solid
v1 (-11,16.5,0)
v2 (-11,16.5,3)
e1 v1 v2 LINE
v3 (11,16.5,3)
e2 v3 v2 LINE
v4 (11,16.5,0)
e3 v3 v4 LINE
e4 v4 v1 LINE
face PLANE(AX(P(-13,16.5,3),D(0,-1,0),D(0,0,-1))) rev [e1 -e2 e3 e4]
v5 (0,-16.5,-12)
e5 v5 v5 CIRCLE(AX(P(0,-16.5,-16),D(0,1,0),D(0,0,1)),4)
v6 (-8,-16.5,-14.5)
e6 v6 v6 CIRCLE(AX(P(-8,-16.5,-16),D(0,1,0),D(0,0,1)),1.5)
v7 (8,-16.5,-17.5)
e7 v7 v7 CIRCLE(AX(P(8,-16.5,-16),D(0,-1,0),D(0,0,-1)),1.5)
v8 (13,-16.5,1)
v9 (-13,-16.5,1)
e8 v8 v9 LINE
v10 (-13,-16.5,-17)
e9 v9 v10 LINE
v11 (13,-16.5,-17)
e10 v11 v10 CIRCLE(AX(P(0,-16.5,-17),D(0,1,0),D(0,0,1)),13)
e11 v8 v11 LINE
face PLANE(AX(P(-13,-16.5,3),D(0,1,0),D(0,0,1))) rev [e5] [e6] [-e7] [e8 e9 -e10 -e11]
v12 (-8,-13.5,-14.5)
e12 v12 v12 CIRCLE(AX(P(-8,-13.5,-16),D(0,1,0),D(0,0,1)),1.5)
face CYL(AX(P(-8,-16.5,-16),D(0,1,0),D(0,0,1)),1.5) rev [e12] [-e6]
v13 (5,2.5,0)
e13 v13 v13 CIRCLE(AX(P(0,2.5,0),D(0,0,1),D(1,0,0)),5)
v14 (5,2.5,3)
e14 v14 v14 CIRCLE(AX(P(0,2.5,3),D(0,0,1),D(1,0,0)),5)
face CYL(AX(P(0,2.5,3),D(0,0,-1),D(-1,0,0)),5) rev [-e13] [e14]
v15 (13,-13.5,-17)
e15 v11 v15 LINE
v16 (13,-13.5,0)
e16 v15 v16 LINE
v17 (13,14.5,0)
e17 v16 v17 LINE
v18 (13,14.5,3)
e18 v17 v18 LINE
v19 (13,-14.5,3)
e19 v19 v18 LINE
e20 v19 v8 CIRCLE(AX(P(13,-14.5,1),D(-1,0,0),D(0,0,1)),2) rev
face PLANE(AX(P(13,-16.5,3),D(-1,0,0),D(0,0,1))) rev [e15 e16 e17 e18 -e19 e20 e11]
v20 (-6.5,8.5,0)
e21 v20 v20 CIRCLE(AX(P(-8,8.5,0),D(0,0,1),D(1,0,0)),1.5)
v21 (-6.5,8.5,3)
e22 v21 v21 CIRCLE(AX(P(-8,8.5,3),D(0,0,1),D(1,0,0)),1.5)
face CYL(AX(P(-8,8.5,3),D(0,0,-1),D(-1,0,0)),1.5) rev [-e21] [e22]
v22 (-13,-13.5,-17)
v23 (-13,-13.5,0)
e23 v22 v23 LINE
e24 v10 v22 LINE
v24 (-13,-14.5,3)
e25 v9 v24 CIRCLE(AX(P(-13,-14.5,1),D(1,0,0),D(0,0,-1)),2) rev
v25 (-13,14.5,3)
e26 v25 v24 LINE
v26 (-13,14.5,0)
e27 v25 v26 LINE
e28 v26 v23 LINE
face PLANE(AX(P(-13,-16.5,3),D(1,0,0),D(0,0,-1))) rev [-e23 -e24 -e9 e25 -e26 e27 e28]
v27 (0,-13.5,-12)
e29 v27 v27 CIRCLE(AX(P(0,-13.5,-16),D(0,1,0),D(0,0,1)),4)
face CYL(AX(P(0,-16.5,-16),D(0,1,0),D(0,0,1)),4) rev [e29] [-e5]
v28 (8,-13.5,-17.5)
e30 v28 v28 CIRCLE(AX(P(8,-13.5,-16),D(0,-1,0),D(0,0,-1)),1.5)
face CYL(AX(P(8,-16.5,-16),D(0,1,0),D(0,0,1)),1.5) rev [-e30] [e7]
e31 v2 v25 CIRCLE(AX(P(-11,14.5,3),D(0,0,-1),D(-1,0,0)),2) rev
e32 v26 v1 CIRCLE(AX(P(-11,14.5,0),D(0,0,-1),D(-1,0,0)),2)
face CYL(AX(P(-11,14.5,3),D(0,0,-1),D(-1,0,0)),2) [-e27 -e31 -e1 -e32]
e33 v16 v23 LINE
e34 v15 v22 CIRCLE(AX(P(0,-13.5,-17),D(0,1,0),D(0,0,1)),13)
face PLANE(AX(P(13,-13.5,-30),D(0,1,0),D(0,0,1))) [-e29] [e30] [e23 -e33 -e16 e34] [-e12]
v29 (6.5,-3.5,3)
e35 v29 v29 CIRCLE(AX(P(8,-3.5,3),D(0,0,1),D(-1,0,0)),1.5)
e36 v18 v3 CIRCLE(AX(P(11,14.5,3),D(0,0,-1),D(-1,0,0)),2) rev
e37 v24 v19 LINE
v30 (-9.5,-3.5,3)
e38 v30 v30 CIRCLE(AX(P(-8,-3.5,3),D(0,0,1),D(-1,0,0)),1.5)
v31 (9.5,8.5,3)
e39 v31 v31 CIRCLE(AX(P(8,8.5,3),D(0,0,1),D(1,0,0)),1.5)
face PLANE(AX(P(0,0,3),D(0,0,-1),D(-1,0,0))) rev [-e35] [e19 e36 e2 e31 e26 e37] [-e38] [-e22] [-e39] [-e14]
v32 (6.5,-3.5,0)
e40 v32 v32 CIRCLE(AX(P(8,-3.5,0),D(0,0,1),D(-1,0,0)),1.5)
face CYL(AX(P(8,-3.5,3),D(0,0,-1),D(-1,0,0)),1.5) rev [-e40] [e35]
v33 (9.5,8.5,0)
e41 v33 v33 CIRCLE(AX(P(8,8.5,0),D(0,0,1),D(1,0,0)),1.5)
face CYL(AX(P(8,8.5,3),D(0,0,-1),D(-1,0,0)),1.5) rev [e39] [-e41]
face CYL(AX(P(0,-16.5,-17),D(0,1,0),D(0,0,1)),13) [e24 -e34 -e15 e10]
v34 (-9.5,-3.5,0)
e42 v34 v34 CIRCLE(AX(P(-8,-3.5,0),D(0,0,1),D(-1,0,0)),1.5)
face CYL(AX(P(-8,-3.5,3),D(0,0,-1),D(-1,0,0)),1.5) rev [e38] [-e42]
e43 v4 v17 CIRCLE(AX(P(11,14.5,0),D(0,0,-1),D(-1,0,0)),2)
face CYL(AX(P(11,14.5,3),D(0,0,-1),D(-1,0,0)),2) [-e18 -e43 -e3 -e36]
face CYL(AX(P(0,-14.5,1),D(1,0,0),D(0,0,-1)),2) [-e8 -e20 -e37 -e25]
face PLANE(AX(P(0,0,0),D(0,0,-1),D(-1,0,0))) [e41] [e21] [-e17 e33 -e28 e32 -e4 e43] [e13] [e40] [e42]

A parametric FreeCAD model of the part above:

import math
import FreeCAD as App
import Part
import Sketcher


def edges_at(feature, points):
    """Names of the edges that pass closest to the given points."""
    edges = feature.Shape.Edges
    near = lambda p: min(range(len(edges)), key=lambda i: edges[i].distToShape(Part.Vertex(*p))[0])
    return sorted({f"Edge{near(p) + 1}" for p in points})


def add_polygon(sketch, points):
    """Adds a closed chain of lines whose ends are joined by coincident constraints."""
    first, n = sketch.GeometryCount, len(points)
    for a, b in zip(points, points[1:] + points[:1]):
        sketch.addGeometry(Part.LineSegment(App.Vector(*a, 0), App.Vector(*b, 0)), False)
    for i in range(n):
        sketch.addConstraint(Sketcher.Constraint("Coincident", first + i, 2, first + (i + 1) % n, 1))

doc = App.newDocument("Part")
body = doc.addObject("PartDesign::Body", "Body")

sketch1 = body.newObject("Sketcher::SketchObject", "Sketch")
sketch1.AttachmentSupport = (doc.getObject("XY_Plane"), [""])
sketch1.MapMode = "FlatFace"
add_polygon(sketch1, [(-13, 16.5), (-13, -16.5), (13, -16.5), (13, 16.5)])
sketch1.addGeometry(Part.Circle(App.Vector(-8, -3.5, 0), App.Vector(0, 0, 1), 1.5), False)
sketch1.addGeometry(Part.Circle(App.Vector(8, -3.5, 0), App.Vector(0, 0, 1), 1.5), False)
sketch1.addGeometry(Part.Circle(App.Vector(-8, 8.5, 0), App.Vector(0, 0, 1), 1.5), False)
sketch1.addGeometry(Part.Circle(App.Vector(0, 2.5, 0), App.Vector(0, 0, 1), 5), False)
sketch1.addGeometry(Part.Circle(App.Vector(8, 8.5, 0), App.Vector(0, 0, 1), 1.5), False)
sketch1.addConstraint([
    Sketcher.Constraint("Vertical", 0),
    Sketcher.Constraint("Horizontal", 1),
    Sketcher.Constraint("Vertical", 2),
    Sketcher.Constraint("Horizontal", 3),
    Sketcher.Constraint("Equal", 4, 5),
    Sketcher.Constraint("Equal", 5, 6),
    Sketcher.Constraint("Equal", 6, 8),
    Sketcher.Constraint("Symmetric", 0, 2, 2, 2, -1, 1),
    Sketcher.Constraint("Symmetric", 4, 3, 5, 3, -2),
    Sketcher.Constraint("Symmetric", 6, 3, 8, 3, -2),
    Sketcher.Constraint("PointOnObject", 7, 3, -2),
    Sketcher.Constraint("Vertical", 4, 3, 6, 3),
    Sketcher.Constraint("Diameter", 4, 3.0),
    Sketcher.Constraint("Diameter", 7, 10.0),
    Sketcher.Constraint("DistanceX", 1, 1, 1, 2, 26.0),
    Sketcher.Constraint("DistanceY", 0, 2, 0, 1, 33.0),
    Sketcher.Constraint("DistanceX", 4, 3, -1, 1, 8.0),
    Sketcher.Constraint("DistanceY", 4, 3, 6, 3, 12.0),
    Sketcher.Constraint("DistanceY", 4, 3, 7, 3, 6.0),
    Sketcher.Constraint("DistanceY", 0, 2, 4, 3, 13.0),
])
pad1 = body.newObject("PartDesign::Pad", "Pad")
pad1.Profile = sketch1
pad1.Length = 3

sketch2 = body.newObject("Sketcher::SketchObject", "Sketch001")
sketch2.AttachmentSupport = (doc.getObject("XY_Plane"), [""])
sketch2.MapMode = "FlatFace"
add_polygon(sketch2, [(13, -13.5), (13, -16.5), (-13, -16.5), (-13, -13.5)])
sketch2.addConstraint([
    Sketcher.Constraint("Vertical", 0),
    Sketcher.Constraint("Horizontal", 1),
    Sketcher.Constraint("Vertical", 2),
    Sketcher.Constraint("Horizontal", 3),
    Sketcher.Constraint("DistanceX", 1, 2, 1, 1, 26.0),
    Sketcher.Constraint("DistanceY", 0, 2, 0, 1, 3.0),
    Sketcher.Constraint("DistanceX", -1, 1, 0, 2, 13.0),
    Sketcher.Constraint("DistanceY", 0, 2, -1, 1, 16.5),
])
pad2 = body.newObject("PartDesign::Pad", "Pad001")
pad2.Profile = sketch2
pad2.Length = 30
pad2.Reversed = True

sketch3 = body.newObject("Sketcher::SketchObject", "Sketch002")
sketch3.AttachmentSupport = (doc.getObject("XZ_Plane"), [""])
sketch3.MapMode = "FlatFace"
sketch3.AttachmentOffset = App.Placement(App.Vector(0, 0, 13.5), App.Rotation())
sketch3.addGeometry([
    Part.LineSegment(App.Vector(0, -30, 0), App.Vector(-13, -30, 0)),
    Part.LineSegment(App.Vector(-13, -30, 0), App.Vector(-13, -17, 0)),
    Part.ArcOfCircle(Part.Circle(App.Vector(0, -17, 0), App.Vector(0, 0, 1), 13), math.radians(-180), math.radians(-90)),
    Part.LineSegment(App.Vector(13, -30, 0), App.Vector(0, -30, 0)),
    Part.ArcOfCircle(Part.Circle(App.Vector(0, -17, 0), App.Vector(0, 0, 1), 13), math.radians(-90), math.radians(0)),
    Part.LineSegment(App.Vector(13, -17, 0), App.Vector(13, -30, 0)),
    Part.Circle(App.Vector(0, -16, 0), App.Vector(0, 0, 1), 4),
    Part.Circle(App.Vector(-8, -16, 0), App.Vector(0, 0, 1), 1.5),
    Part.Circle(App.Vector(8, -16, 0), App.Vector(0, 0, 1), 1.5),
], False)
sketch3.addConstraint([
    Sketcher.Constraint("Coincident", 0, 2, 1, 1),
    Sketcher.Constraint("Tangent", 1, 2, 2, 1),
    Sketcher.Constraint("Tangent", 2, 2, 0, 1),
    Sketcher.Constraint("Tangent", 3, 2, 4, 1),
    Sketcher.Constraint("Tangent", 4, 2, 5, 1),
    Sketcher.Constraint("Coincident", 5, 2, 3, 1),
    Sketcher.Constraint("Horizontal", 0),
    Sketcher.Constraint("Vertical", 1),
    Sketcher.Constraint("Horizontal", 3),
    Sketcher.Constraint("Vertical", 5),
    Sketcher.Constraint("Coincident", 4, 3, 2, 3),
    Sketcher.Constraint("Equal", 2, 4),
    Sketcher.Constraint("Equal", 7, 8),
    Sketcher.Constraint("Symmetric", 7, 3, 8, 3, -2),
    Sketcher.Constraint("PointOnObject", 2, 3, -2),
    Sketcher.Constraint("PointOnObject", 6, 3, -2),
    Sketcher.Constraint("Horizontal", 6, 3, 7, 3),
    Sketcher.Constraint("Diameter", 6, 8.0),
    Sketcher.Constraint("Diameter", 7, 3.0),
    Sketcher.Constraint("Radius", 2, 13.0),
    Sketcher.Constraint("DistanceY", 2, 3, -1, 1, 17.0),
    Sketcher.Constraint("DistanceY", 6, 3, -1, 1, 16.0),
    Sketcher.Constraint("DistanceX", 7, 3, -1, 1, 8.0),
])
pocket1 = body.newObject("PartDesign::Pocket", "Pocket")
pocket1.Profile = sketch3
pocket1.Type = "ThroughAll"
pocket1.Reversed = True
doc.recompute()

fillet = body.newObject("PartDesign::Fillet", "Fillet")
fillet.Base = (pocket1, edges_at(pocket1, [(-13, 16.5, 1.5), (13, 16.5, 1.5)]))
fillet.Radius = 2
doc.recompute()

fillet2 = body.newObject("PartDesign::Fillet", "Fillet001")
fillet2.Base = (fillet, edges_at(fillet, [(0, -16.5, 3)]))
fillet2.Radius = 2

doc.recompute()
